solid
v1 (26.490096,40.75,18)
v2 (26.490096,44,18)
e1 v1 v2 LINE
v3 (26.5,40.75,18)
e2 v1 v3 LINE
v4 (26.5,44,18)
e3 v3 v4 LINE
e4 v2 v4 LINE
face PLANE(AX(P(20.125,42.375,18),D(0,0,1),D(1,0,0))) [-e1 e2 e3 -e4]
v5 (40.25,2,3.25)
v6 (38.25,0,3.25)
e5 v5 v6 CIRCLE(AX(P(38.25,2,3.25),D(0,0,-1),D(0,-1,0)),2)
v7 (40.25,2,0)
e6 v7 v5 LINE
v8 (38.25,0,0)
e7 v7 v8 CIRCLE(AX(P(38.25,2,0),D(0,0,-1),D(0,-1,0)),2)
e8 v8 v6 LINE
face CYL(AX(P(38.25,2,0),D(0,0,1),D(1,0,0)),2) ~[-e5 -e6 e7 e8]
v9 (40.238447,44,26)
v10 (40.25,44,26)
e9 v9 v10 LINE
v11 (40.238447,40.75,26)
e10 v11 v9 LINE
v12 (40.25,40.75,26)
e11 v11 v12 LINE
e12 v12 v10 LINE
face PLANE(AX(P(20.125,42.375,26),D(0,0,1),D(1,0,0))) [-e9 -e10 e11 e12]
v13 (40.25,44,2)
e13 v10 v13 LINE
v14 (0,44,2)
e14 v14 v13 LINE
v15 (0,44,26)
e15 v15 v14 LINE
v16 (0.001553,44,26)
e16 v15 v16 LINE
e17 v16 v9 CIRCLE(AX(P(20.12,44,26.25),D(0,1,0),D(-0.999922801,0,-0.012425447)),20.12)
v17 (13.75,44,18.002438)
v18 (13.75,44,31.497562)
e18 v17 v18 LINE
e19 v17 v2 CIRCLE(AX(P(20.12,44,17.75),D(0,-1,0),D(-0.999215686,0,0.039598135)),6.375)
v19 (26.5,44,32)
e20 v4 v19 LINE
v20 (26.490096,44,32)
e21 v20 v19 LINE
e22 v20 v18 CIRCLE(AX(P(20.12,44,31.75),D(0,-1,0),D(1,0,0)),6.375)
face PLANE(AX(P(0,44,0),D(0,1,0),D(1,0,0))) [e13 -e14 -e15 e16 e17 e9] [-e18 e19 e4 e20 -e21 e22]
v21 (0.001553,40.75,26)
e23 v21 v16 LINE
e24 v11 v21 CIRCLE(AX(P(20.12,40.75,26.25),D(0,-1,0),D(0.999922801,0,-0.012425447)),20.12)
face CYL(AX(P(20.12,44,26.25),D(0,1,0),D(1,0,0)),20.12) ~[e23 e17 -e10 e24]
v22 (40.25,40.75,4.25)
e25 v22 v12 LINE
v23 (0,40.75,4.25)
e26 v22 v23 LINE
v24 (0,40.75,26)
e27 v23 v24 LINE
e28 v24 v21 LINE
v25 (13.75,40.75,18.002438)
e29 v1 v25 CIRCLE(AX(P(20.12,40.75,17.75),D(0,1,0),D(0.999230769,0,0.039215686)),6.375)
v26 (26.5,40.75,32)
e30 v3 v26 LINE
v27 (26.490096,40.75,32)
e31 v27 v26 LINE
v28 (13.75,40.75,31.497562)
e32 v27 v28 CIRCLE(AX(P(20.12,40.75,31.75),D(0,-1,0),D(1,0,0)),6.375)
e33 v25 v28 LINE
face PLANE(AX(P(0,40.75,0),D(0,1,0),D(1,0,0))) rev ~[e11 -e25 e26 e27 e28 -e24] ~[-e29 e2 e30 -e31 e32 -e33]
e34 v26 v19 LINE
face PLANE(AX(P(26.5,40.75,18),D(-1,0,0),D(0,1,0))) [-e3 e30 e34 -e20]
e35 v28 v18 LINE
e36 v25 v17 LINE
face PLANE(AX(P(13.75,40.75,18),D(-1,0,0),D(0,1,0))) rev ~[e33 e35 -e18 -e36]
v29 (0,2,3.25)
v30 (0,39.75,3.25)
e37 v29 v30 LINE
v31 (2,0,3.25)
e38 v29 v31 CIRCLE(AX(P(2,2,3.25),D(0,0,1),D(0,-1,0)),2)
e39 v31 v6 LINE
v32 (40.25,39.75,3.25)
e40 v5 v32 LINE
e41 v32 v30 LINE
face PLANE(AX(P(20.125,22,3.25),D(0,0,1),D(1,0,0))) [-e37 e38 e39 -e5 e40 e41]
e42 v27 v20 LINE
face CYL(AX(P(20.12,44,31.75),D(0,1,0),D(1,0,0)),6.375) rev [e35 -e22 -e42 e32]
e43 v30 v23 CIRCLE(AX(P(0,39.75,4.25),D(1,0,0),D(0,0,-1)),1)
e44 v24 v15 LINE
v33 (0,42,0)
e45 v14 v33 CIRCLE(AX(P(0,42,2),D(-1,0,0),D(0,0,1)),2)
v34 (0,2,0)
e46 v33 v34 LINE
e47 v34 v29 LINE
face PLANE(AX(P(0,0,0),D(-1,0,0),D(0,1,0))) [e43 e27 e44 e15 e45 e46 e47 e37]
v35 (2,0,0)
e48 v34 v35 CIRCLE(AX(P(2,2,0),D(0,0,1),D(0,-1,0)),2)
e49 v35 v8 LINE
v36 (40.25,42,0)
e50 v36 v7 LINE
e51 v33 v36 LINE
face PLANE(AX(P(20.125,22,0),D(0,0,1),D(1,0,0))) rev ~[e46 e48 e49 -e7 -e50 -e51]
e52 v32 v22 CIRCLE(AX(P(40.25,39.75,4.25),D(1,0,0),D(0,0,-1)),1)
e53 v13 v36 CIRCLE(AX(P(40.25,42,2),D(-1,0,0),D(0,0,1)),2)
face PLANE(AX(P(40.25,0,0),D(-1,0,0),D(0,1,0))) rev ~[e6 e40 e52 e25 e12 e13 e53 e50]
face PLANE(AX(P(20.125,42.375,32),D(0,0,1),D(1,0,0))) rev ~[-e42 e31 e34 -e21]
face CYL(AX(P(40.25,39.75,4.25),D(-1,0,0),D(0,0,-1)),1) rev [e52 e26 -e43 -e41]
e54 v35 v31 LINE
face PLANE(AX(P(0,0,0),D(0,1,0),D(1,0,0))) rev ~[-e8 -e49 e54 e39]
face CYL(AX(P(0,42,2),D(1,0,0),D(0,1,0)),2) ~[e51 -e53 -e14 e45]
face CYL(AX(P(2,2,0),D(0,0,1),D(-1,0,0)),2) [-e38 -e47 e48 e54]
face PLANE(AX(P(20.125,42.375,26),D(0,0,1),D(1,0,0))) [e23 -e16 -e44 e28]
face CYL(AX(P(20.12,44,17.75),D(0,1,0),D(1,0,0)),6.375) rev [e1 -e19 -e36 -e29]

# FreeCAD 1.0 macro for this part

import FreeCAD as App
import Part
import Sketcher
from FreeCAD import Vector
Q = App.Units.Quantity


def edges_at(feature, points):
    """Names of the edges that pass closest to the given points."""
    edges = feature.Shape.Edges
    near = lambda p: min(range(len(edges)), key=lambda i: edges[i].distToShape(Part.Vertex(*p))[0])
    return sorted({f"Edge{near(p) + 1}" for p in points})


def add_polygon(sketch, points):
    """Adds a closed chain of lines whose ends are joined by coincident constraints."""
    first, n = sketch.GeometryCount, len(points)
    for a, b in zip(points, points[1:] + points[:1]):
        sketch.addGeometry(Part.LineSegment(App.Vector(*a, 0), App.Vector(*b, 0)), False)
    for i in range(n):
        sketch.addConstraint(Sketcher.Constraint("Coincident", first + i, 2, first + (i + 1) % n, 1))

doc = App.newDocument("Part")
body = doc.addObject("PartDesign::Body", "Body")

# Sketch on XY plane
sketch1 = body.newObject("Sketcher::SketchObject", "Sketch")
sketch1.AttachmentSupport = (doc.getObject("XY_Plane"), [""])
sketch1.MapMode = "FlatFace"
sketch1.AttachmentOffset = App.Placement(Vector(0, 0, 18), App.Rotation())
add_polygon(sketch1, [(13.8, 44), (13.8, 40.8), (26.5, 40.8), (26.5, 44)])  # lines 0-3
sketch1.addConstraint([
    Sketcher.Constraint("Vertical", 0),
    Sketcher.Constraint("Horizontal", 1),
    Sketcher.Constraint("Vertical", 2),
    Sketcher.Constraint("Horizontal", 3),
    Sketcher.Constraint("DistanceY", -1, 1, 2, 2, Q("44 mm")),
    Sketcher.Constraint("DistanceX", 1, 1, 1, 2, Q("12.75 mm")),
    Sketcher.Constraint("DistanceY", 0, 2, 0, 1, Q("3.25 mm")),
    Sketcher.Constraint("DistanceX", -1, 1, 1, 2, Q("26.5 mm")),
])
pad1 = body.newObject("PartDesign::Pad", "Pad")
pad1.Profile = sketch1
pad1.Length = 14
body2 = doc.addObject("PartDesign::Body", "Body001")

# Sketch on XZ plane
sketch2 = body2.newObject("Sketcher::SketchObject", "Sketch001")
sketch2.AttachmentSupport = (doc.getObject("XZ_Plane001"), [""])
sketch2.MapMode = "FlatFace"
sketch2.AttachmentOffset = App.Placement(Vector(0, 0, -44), App.Rotation())
sketch2.addGeometry(Part.Circle(Vector(20, 18, 0), Vector(0, 0, 1), 6), False)
sketch2.addConstraint([
    Sketcher.Constraint("Diameter", 0, Q("12.75 mm")),
    Sketcher.Constraint("DistanceX", -1, 1, 0, 3, Q("20.12 mm")),
    Sketcher.Constraint("DistanceY", -1, 1, 0, 3, Q("17.75 mm")),
])
pad2 = body2.newObject("PartDesign::Pad", "Pad001")
pad2.Profile = sketch2
pad2.Length = 3.25
body3 = doc.addObject("PartDesign::Body", "Body002")

# Sketch on XZ plane
sketch3 = body3.newObject("Sketcher::SketchObject", "Sketch002")
sketch3.AttachmentSupport = (doc.getObject("XZ_Plane002"), [""])
sketch3.MapMode = "FlatFace"
sketch3.AttachmentOffset = App.Placement(Vector(0, 0, -44), App.Rotation())
sketch3.addGeometry(Part.Circle(Vector(20, 32, 0), Vector(0, 0, 1), 6), False)
sketch3.addConstraint([
    Sketcher.Constraint("Diameter", 0, Q("12.75 mm")),
    Sketcher.Constraint("DistanceX", -1, 1, 0, 3, Q("20.12 mm")),
    Sketcher.Constraint("DistanceY", -1, 1, 0, 3, Q("31.75 mm")),
])
pad3 = body3.newObject("PartDesign::Pad", "Pad002")
pad3.Profile = sketch3
pad3.Length = 3.25
body4 = doc.addObject("PartDesign::Body", "Body003")

# Sketch on XY plane
sketch4 = body4.newObject("Sketcher::SketchObject", "Sketch003")
sketch4.AttachmentSupport = (doc.getObject("XY_Plane003"), [""])
sketch4.MapMode = "FlatFace"
add_polygon(sketch4, [(0, 44), (0, 40.8), (40.2, 40.8), (40.2, 44)])  # lines 0-3
sketch4.addConstraint([
    Sketcher.Constraint("Vertical", 0),
    Sketcher.Constraint("Horizontal", 1),
    Sketcher.Constraint("Vertical", 2),
    Sketcher.Constraint("Horizontal", 3),
    Sketcher.Constraint("PointOnObject", 0, 2, -2),
    Sketcher.Constraint("DistanceY", -1, 1, 2, 2, Q("44 mm")),
    Sketcher.Constraint("DistanceX", 1, 1, 1, 2, Q("40.25 mm")),
    Sketcher.Constraint("DistanceY", 0, 2, 0, 1, Q("3.25 mm")),
])
pad4 = body4.newObject("PartDesign::Pad", "Pad003")
pad4.Profile = sketch4
pad4.Length = 26
body5 = doc.addObject("PartDesign::Body", "Body004")

# Sketch on XY plane
sketch5 = body5.newObject("Sketcher::SketchObject", "Sketch004")
sketch5.AttachmentSupport = (doc.getObject("XY_Plane004"), [""])
sketch5.MapMode = "FlatFace"
add_polygon(sketch5, [(0, 44), (0, 0), (40, 0), (40, 44)])  # lines 0-3
sketch5.addConstraint([
    Sketcher.Constraint("Vertical", 0),
    Sketcher.Constraint("Horizontal", 1),
    Sketcher.Constraint("Vertical", 2),
    Sketcher.Constraint("Horizontal", 3),
    Sketcher.Constraint("Coincident", 0, 2, -1, 1),
    Sketcher.Constraint("DistanceY", 0, 2, 0, 1, Q("44 mm")),
    Sketcher.Constraint("DistanceX", 1, 1, 1, 2, Q("40.25 mm")),
])
pad5 = body5.newObject("PartDesign::Pad", "Pad004")
pad5.Profile = sketch5
pad5.Length = 3.25
doc.recompute()

boolean = body5.newObject("PartDesign::Boolean", "Boolean")
boolean.Type = "Fuse"
boolean.addObjects([body4])
body6 = doc.addObject("PartDesign::Body", "Body005")

# Sketch on XZ plane
sketch6 = body6.newObject("Sketcher::SketchObject", "Sketch005")
sketch6.AttachmentSupport = (doc.getObject("XZ_Plane005"), [""])
sketch6.MapMode = "FlatFace"
sketch6.AttachmentOffset = App.Placement(Vector(0, 0, -44), App.Rotation())
sketch6.addGeometry(Part.Circle(Vector(20, 26, 0), Vector(0, 0, 1), 20), False)
sketch6.addConstraint([
    Sketcher.Constraint("Diameter", 0, Q("40.24 mm")),
    Sketcher.Constraint("DistanceX", -1, 1, 0, 3, Q("20.12 mm")),
    Sketcher.Constraint("DistanceY", -1, 1, 0, 3, Q("26.25 mm")),
])
pad6 = body6.newObject("PartDesign::Pad", "Pad005")
pad6.Profile = sketch6
pad6.Length = 3.25
doc.recompute()

boolean2 = body6.newObject("PartDesign::Boolean", "Boolean001")
boolean2.Type = "Fuse"
boolean2.addObjects([body5])
doc.recompute()

boolean3 = body6.newObject("PartDesign::Boolean", "Boolean002")
boolean3.Type = "Cut"
boolean3.addObjects([body3])
doc.recompute()

boolean4 = body6.newObject("PartDesign::Boolean", "Boolean003")
boolean4.Type = "Cut"
boolean4.addObjects([body2])
doc.recompute()

boolean5 = body6.newObject("PartDesign::Boolean", "Boolean004")
boolean5.Type = "Cut"
boolean5.addObjects([body])
doc.recompute()

fillet = body6.newObject("PartDesign::Fillet", "Fillet")
fillet.Base = (boolean5, edges_at(boolean5, [(20.125, 44, 0), (40.25, 0, 1.625), (0, 0, 1.625)]))
fillet.Radius = 2
doc.recompute()

fillet2 = body6.newObject("PartDesign::Fillet", "Fillet001")
fillet2.Base = (fillet, edges_at(fillet, [(20.125, 40.75, 3.25)]))
fillet2.Radius = 1

doc.recompute()
